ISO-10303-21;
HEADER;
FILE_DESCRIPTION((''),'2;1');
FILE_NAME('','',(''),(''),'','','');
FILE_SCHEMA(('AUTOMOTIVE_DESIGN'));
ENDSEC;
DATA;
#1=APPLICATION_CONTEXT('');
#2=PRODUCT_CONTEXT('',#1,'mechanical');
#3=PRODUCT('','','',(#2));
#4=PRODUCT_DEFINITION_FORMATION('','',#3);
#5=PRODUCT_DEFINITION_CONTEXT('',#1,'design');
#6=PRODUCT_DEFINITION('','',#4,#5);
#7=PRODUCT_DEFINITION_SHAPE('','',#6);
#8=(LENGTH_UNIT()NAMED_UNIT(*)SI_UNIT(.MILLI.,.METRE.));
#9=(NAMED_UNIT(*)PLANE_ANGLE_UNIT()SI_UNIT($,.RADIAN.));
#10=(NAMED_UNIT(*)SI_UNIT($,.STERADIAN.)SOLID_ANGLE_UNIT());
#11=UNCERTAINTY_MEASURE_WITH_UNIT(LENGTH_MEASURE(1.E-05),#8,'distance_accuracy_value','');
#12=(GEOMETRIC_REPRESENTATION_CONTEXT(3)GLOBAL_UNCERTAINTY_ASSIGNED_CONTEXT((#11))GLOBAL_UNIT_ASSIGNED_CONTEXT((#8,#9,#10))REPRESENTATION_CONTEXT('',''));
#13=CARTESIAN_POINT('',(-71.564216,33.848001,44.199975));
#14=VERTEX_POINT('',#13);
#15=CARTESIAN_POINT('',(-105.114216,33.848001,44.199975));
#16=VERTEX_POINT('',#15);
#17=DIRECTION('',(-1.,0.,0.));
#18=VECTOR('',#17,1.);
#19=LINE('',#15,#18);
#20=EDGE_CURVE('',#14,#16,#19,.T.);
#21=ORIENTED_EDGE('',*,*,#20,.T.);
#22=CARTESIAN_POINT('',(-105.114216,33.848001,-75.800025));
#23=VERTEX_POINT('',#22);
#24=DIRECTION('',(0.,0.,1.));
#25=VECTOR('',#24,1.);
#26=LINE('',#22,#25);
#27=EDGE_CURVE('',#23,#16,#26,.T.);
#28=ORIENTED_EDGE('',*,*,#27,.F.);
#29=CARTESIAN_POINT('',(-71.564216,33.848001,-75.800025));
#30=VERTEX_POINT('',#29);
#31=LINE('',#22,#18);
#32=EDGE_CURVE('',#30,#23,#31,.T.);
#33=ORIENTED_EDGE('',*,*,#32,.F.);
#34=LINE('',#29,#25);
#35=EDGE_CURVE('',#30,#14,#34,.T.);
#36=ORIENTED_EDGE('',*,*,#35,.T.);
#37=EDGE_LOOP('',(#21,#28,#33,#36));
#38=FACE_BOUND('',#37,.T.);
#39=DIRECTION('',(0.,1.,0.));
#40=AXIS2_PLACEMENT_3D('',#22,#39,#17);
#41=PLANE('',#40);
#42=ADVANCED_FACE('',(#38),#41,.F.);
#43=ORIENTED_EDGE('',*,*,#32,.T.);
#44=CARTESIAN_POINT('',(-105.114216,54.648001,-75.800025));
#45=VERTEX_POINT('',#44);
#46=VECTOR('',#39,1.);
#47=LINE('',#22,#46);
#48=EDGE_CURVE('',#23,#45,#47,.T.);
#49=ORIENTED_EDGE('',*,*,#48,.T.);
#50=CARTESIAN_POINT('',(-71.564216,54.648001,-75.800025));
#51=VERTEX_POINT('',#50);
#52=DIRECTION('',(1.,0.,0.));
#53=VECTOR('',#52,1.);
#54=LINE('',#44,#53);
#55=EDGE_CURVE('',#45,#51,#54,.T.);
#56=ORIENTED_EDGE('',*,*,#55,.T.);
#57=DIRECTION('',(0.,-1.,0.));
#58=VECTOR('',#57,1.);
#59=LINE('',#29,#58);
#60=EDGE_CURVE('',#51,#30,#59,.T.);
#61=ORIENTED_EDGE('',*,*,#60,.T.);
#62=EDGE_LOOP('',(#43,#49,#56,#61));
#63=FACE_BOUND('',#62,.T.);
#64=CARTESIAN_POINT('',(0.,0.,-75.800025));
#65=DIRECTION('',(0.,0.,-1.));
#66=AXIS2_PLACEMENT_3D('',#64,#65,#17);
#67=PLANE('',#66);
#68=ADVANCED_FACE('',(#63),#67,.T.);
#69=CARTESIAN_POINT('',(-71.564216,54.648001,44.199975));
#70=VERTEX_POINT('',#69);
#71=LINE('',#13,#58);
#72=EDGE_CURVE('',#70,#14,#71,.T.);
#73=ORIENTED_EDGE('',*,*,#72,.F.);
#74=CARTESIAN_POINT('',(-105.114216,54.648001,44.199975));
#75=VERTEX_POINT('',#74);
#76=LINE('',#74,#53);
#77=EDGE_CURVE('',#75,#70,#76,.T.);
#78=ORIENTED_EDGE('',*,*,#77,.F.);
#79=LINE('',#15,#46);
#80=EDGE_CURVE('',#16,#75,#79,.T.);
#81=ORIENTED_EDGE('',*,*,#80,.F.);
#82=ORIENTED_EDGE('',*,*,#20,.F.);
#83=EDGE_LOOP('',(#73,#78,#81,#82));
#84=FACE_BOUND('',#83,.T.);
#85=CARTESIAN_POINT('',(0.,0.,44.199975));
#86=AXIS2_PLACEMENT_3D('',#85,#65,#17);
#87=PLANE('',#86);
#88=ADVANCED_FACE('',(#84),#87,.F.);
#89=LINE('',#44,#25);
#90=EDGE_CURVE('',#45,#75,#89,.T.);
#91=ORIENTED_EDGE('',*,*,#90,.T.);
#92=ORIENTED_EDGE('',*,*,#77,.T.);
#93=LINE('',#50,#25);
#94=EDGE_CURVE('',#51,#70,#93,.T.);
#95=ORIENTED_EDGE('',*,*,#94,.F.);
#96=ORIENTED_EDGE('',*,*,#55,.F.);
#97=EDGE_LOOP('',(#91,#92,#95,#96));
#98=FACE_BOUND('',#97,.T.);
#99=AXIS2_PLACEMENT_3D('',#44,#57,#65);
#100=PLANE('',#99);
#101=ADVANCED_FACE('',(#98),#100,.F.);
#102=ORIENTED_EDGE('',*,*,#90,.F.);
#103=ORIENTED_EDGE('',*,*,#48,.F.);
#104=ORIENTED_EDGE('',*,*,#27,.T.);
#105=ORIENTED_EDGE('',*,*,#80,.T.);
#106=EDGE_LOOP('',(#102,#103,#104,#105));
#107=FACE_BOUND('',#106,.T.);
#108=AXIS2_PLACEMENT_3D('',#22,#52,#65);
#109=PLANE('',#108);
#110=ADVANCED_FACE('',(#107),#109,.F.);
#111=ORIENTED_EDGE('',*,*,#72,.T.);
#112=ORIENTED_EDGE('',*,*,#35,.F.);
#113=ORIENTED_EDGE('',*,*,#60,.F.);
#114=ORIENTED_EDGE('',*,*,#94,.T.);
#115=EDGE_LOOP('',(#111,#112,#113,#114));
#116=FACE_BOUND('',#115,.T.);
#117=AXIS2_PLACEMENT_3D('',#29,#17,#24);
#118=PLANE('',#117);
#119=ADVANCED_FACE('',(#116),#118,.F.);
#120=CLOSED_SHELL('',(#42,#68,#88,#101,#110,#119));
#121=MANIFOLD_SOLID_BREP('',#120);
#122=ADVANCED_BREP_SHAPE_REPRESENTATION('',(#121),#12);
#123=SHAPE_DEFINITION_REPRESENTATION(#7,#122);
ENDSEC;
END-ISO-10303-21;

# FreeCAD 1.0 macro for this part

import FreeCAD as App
import Part
import Sketcher
from FreeCAD import Vector

doc = App.newDocument("Part")
body = doc.addObject("PartDesign::Body", "Body")

sketch1 = body.newObject("Sketcher::SketchObject", "Sketch")
sketch1.AttachmentSupport = (doc.getObject("XY_Plane"), [""])
sketch1.MapMode = "FlatFace"
sketch1.AttachmentOffset = App.Placement(Vector(0, 0, 44.199975), App.Rotation())
sketch1.addGeometry(Part.LineSegment(Vector(-72, 55, 0), Vector(-72, 34, 0)), False)
sketch1.addGeometry(Part.LineSegment(Vector(-72, 34, 0), Vector(-105, 34, 0)), False)
sketch1.addGeometry(Part.LineSegment(Vector(-105, 34, 0), Vector(-105, 55, 0)), False)
sketch1.addGeometry(Part.LineSegment(Vector(-105, 55, 0), Vector(-72, 55, 0)), False)
sketch1.addConstraint(Sketcher.Constraint("Coincident", 0, 2, 1, 1))
sketch1.addConstraint(Sketcher.Constraint("Coincident", 1, 2, 2, 1))
sketch1.addConstraint(Sketcher.Constraint("Coincident", 2, 2, 3, 1))
sketch1.addConstraint(Sketcher.Constraint("Coincident", 3, 2, 0, 1))
sketch1.addConstraint(Sketcher.Constraint("Vertical", 0))
sketch1.addConstraint(Sketcher.Constraint("Horizontal", 1))
sketch1.addConstraint(Sketcher.Constraint("Vertical", 2))
sketch1.addConstraint(Sketcher.Constraint("Horizontal", 3))
sketch1.addConstraint(Sketcher.Constraint("DistanceY", 0, 2, 0, 1, 20.8))
sketch1.addConstraint(Sketcher.Constraint("DistanceX", 1, 2, 1, 1, 33.55))
sketch1.addConstraint(Sketcher.Constraint("DistanceY", -1, 1, 0, 2, 33.848001))
sketch1.addConstraint(Sketcher.Constraint("DistanceX", 0, 2, -1, 1, 71.564216))
pad1 = body.newObject("PartDesign::Pad", "Pad")
pad1.Profile = sketch1
pad1.Length = 120
pad1.Reversed = True

doc.recompute()
